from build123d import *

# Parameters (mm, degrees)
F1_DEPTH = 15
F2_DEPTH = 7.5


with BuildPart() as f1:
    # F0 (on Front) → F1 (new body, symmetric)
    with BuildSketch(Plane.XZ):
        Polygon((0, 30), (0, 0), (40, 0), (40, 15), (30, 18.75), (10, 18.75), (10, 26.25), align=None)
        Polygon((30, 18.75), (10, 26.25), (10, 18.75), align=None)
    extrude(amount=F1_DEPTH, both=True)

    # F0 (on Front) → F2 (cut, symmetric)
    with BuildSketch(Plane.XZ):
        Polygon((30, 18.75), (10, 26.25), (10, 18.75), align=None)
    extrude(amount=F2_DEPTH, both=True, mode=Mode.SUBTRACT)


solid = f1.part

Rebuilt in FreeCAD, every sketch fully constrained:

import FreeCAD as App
import Part
import Sketcher
from FreeCAD import Vector


def add_polygon(sketch, points):
    """Adds a closed chain of lines whose ends are joined by coincident constraints."""
    first, n = sketch.GeometryCount, len(points)
    for a, b in zip(points, points[1:] + points[:1]):
        sketch.addGeometry(Part.LineSegment(App.Vector(*a, 0), App.Vector(*b, 0)), False)
    for i in range(n):
        sketch.addConstraint(Sketcher.Constraint("Coincident", first + i, 2, first + (i + 1) % n, 1))

doc = App.newDocument("Part")
body = doc.addObject("PartDesign::Body", "Body")

sketch1 = body.newObject("Sketcher::SketchObject", "Sketch")
sketch1.AttachmentSupport = (doc.getObject("XZ_Plane"), [""])
sketch1.MapMode = "FlatFace"
add_polygon(sketch1, [(0, 30), (0, 0), (40, 0), (40, 15)])
sketch1.addConstraint(Sketcher.Constraint("Vertical", 0))
sketch1.addConstraint(Sketcher.Constraint("Horizontal", 1))
sketch1.addConstraint(Sketcher.Constraint("Vertical", 2))
sketch1.addConstraint(Sketcher.Constraint("Coincident", 0, 2, -1, 1))
sketch1.addConstraint(Sketcher.Constraint("DistanceX", 1, 1, 1, 2, 40.0))
sketch1.addConstraint(Sketcher.Constraint("DistanceY", 0, 2, 0, 1, 30.0))
sketch1.addConstraint(Sketcher.Constraint("DistanceY", 2, 1, 2, 2, 15.0))
pad1 = body.newObject("PartDesign::Pad", "Pad")
pad1.Profile = sketch1
pad1.Length = 30
pad1.Midplane = True

sketch2 = body.newObject("Sketcher::SketchObject", "Sketch001")
sketch2.AttachmentSupport = (doc.getObject("XZ_Plane"), [""])
sketch2.MapMode = "FlatFace"
add_polygon(sketch2, [(30, 18.75), (10, 26.25), (10, 18.75)])
sketch2.addConstraint(Sketcher.Constraint("Vertical", 1))
sketch2.addConstraint(Sketcher.Constraint("Horizontal", 2))
sketch2.addConstraint(Sketcher.Constraint("DistanceX", 2, 1, 2, 2, 20.0))
sketch2.addConstraint(Sketcher.Constraint("DistanceY", 1, 2, 1, 1, 7.5))
sketch2.addConstraint(Sketcher.Constraint("DistanceX", -1, 1, 0, 2, 10.0))
sketch2.addConstraint(Sketcher.Constraint("DistanceY", -1, 1, 0, 2, 26.25))
pocket1 = body.newObject("PartDesign::Pocket", "Pocket")
pocket1.Profile = sketch2
pocket1.Length = 15
pocket1.Midplane = True

doc.recompute()
